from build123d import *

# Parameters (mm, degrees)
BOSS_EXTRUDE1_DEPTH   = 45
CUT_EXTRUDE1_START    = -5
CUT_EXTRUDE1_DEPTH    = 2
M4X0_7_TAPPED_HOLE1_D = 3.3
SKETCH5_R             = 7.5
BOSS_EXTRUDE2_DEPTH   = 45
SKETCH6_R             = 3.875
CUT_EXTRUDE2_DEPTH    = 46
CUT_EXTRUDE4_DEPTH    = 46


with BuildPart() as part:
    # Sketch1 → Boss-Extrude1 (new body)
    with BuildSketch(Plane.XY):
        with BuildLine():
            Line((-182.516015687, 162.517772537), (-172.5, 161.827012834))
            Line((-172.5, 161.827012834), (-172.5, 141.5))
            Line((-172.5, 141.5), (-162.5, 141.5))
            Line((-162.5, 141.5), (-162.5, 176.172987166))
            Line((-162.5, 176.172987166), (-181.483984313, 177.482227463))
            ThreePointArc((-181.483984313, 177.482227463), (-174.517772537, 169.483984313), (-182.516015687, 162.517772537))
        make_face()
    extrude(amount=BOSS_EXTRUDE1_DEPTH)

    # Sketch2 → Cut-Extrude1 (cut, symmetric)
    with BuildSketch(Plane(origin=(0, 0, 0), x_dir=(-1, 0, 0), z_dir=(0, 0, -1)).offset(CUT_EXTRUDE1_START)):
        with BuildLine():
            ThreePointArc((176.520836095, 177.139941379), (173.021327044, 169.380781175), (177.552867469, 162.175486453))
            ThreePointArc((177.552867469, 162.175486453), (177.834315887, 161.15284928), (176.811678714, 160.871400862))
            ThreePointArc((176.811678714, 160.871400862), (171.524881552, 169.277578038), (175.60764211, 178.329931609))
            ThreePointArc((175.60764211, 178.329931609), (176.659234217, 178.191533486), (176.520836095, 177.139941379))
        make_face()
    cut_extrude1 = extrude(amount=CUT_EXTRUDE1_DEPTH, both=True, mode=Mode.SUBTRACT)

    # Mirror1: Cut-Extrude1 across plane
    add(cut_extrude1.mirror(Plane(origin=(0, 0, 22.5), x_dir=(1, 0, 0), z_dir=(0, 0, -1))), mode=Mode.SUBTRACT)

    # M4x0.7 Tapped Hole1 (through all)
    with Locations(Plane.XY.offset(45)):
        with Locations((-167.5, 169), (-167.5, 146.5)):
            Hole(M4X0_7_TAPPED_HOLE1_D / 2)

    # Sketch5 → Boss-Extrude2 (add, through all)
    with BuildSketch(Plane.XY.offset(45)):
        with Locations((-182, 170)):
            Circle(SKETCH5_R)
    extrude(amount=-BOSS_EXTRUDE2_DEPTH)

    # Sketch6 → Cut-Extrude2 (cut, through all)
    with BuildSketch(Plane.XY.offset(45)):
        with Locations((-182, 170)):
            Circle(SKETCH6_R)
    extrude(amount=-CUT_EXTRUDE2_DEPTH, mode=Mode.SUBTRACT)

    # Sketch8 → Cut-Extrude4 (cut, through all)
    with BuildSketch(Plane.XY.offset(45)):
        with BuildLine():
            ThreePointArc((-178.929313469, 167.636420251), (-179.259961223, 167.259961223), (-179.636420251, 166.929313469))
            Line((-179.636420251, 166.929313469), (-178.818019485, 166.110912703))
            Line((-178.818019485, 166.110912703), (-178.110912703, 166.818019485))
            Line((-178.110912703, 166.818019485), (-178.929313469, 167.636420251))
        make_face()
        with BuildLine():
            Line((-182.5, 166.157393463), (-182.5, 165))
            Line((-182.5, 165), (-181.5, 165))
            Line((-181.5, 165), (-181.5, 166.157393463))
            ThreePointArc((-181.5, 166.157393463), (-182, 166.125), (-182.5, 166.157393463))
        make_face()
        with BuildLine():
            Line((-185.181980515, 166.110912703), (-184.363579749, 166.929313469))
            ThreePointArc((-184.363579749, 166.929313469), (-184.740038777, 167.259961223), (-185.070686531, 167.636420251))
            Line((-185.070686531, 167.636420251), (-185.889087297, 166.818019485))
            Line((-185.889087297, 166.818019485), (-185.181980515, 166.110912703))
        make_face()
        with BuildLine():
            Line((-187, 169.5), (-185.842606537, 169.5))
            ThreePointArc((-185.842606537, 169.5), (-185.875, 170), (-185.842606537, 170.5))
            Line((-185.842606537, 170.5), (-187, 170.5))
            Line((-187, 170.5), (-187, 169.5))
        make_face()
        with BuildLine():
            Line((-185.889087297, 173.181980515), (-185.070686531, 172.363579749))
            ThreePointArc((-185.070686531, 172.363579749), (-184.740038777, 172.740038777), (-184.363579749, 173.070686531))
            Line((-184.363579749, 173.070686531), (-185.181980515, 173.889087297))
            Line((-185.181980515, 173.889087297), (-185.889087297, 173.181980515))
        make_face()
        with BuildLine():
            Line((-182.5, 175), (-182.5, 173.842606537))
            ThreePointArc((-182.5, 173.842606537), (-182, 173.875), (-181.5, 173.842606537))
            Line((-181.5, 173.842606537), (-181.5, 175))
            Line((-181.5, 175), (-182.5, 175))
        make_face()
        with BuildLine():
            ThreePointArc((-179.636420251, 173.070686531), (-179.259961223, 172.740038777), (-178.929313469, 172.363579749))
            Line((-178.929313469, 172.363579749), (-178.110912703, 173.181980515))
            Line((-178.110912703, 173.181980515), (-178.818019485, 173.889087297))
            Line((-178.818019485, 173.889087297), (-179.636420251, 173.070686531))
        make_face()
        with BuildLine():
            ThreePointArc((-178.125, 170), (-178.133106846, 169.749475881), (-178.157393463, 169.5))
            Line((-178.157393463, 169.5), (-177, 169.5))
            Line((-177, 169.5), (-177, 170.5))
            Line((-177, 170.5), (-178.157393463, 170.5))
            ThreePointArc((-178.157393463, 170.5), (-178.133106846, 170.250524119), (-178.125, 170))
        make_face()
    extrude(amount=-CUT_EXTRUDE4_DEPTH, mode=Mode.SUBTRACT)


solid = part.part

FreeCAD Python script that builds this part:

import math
import FreeCAD as App
import Part
import Sketcher

V = App.Vector
Q = App.Units.Quantity

doc = App.newDocument("Part")
body = doc.addObject("PartDesign::Body", "Body")

# Sketch on XY plane
sketch1 = doc.addObject("Sketcher::SketchObject", "Sketch")
body.addObject(sketch1)
sketch1.AttachmentSupport = (doc.XY_Plane, [""])
sketch1.MapMode = "FlatFace"
sketch1.addGeometry([
    Part.LineSegment(V(-182.516016, 162.517773, 0), V(-172.5, 161.827013, 0)),  # 0
    Part.LineSegment(V(-172.5, 161.827013, 0), V(-172.5, 141.5, 0)),  # 1
    Part.LineSegment(V(-172.5, 141.5, 0), V(-162.5, 141.5, 0)),  # 2
    Part.LineSegment(V(-162.5, 141.5, 0), V(-162.5, 176.172987, 0)),  # 3
    Part.LineSegment(V(-162.5, 176.172987, 0), V(-181.483984, 177.482227, 0)),  # 4
    Part.ArcOfCircle(Part.Circle(V(-182, 170, 0), V(0, 0, 1), 7.5), math.radians(-93.945186), math.radians(86.054814)),  # 5
], False)
sketch1.addConstraint([
    Sketcher.Constraint("Coincident", 0, 2, 1, 1),
    Sketcher.Constraint("Coincident", 1, 2, 2, 1),
    Sketcher.Constraint("Coincident", 2, 2, 3, 1),
    Sketcher.Constraint("Coincident", 3, 2, 4, 1),
    Sketcher.Constraint("Tangent", 4, 2, 5, 2),
    Sketcher.Constraint("Tangent", 5, 1, 0, 1),
    Sketcher.Constraint("Vertical", 1),
    Sketcher.Constraint("Horizontal", 2),
    Sketcher.Constraint("Vertical", 3),
    Sketcher.Constraint("Parallel", 0, 4),
    Sketcher.Constraint("Radius", 5, Q("7.5 mm")),
    Sketcher.Constraint("DistanceX", 2, 1, 2, 2, Q("10 mm")),
    Sketcher.Constraint("DistanceX", 5, 3, -1, 1, Q("182 mm")),
    Sketcher.Constraint("DistanceY", -1, 1, 5, 3, Q("170 mm")),
    Sketcher.Constraint("DistanceX", 0, 2, -1, 1, Q("172.5 mm")),
    Sketcher.Constraint("DistanceY", -1, 1, 1, 2, Q("141.5 mm")),
    Sketcher.Constraint("DistanceY", 1, 2, 1, 1, Q("20.327013 mm")),
])
pad1 = doc.addObject("PartDesign::Pad", "Pad")
body.addObject(pad1)
pad1.Profile = sketch1
pad1.Length = 45

# Sketch on XY plane
sketch2 = doc.addObject("Sketcher::SketchObject", "Sketch001")
body.addObject(sketch2)
sketch2.AttachmentSupport = (doc.XY_Plane, [""])
sketch2.MapMode = "FlatFace"
sketch2.AttachmentOffset = App.Placement(V(0, 0, 5), App.Rotation())
sketch2.addGeometry([
    Part.ArcOfCircle(Part.Circle(V(-182, 170, 0), V(0, 0, 1), 9), math.radians(-60.387876), math.radians(52.497504)),
    Part.ArcOfCircle(Part.Circle(V(-176.064239, 177.734936, 0), V(0, 0, 1), 0.75), math.radians(52.497504), math.radians(232.497504)),
    Part.ArcOfCircle(Part.Circle(V(-182, 170, 0), V(0, 0, 1), 10.5), math.radians(-60.387876), math.radians(52.497504)),
    Part.ArcOfCircle(Part.Circle(V(-177.182273, 161.523444, 0), V(0, 0, 1), 0.75), math.radians(119.612123), math.radians(299.612124)),
], False)
sketch2.addConstraint([
    Sketcher.Constraint("Tangent", 0, 2, 1, 2),
    Sketcher.Constraint("Tangent", 1, 1, 2, 2),
    Sketcher.Constraint("Tangent", 2, 1, 3, 2),
    Sketcher.Constraint("Tangent", 3, 1, 0, 1),
    Sketcher.Constraint("Coincident", 2, 3, 0, 3),
    Sketcher.Constraint("Radius", 0, Q("9 mm")),
    Sketcher.Constraint("Radius", 2, Q("10.5 mm")),
    Sketcher.Constraint("DistanceX", 0, 3, -1, 1, Q("182 mm")),
    Sketcher.Constraint("DistanceY", -1, 1, 0, 3, Q("170 mm")),
    Sketcher.Constraint("DistanceY", -1, 1, 2, 1, Q("160.871401 mm")),
    Sketcher.Constraint("DistanceX", 1, 3, -1, 1, Q("176.064239 mm")),
])
pocket1 = doc.addObject("PartDesign::Pocket", "Pocket")
body.addObject(pocket1)
pocket1.Profile = sketch2
pocket1.Length = 4
pocket1.Midplane = True
doc.recompute()

datumplane = doc.addObject("PartDesign::Plane", "DatumPlane")
body.addObject(datumplane)
datumplane.AttachmentSupport = (doc.XY_Plane, [""])
datumplane.MapMode = "FlatFace"
datumplane.AttachmentOffset = App.Placement(V(0, 0, 22.5), App.Rotation())
mirrored = doc.addObject("PartDesign::Mirrored", "Mirrored")
body.addObject(mirrored)
mirrored.Originals = [pocket1]
mirrored.MirrorPlane = (datumplane, [""])
body.Tip = mirrored

# Sketch on XY plane
sketch3 = doc.addObject("Sketcher::SketchObject", "Sketch002")
body.addObject(sketch3)
sketch3.AttachmentSupport = (doc.XY_Plane, [""])
sketch3.MapMode = "FlatFace"
sketch3.AttachmentOffset = App.Placement(V(0, 0, 45), App.Rotation())
sketch3.addGeometry([
    Part.Circle(V(-167.5, 169, 0), V(0, 0, 1), 1.65),
    Part.Circle(V(-167.5, 146.5, 0), V(0, 0, 1), 1.65),
], False)
sketch3.addConstraint([
    Sketcher.Constraint("Equal", 0, 1),
    Sketcher.Constraint("Vertical", 0, 3, 1, 3),
    Sketcher.Constraint("Diameter", 0, Q("3.3 mm")),
    Sketcher.Constraint("DistanceY", -1, 1, 0, 3, Q("169 mm")),
    Sketcher.Constraint("DistanceX", 0, 3, -1, 1, Q("167.5 mm")),
    Sketcher.Constraint("DistanceY", -1, 1, 1, 3, Q("146.5 mm")),
])
doc.recompute()
hole = doc.addObject("PartDesign::Hole", "Hole")
body.addObject(hole)
hole.Profile = sketch3
hole.ThreadType = "None"
hole.Diameter = 3.3
hole.DepthType = "ThroughAll"

# Sketch on XY plane
sketch4 = doc.addObject("Sketcher::SketchObject", "Sketch003")
body.addObject(sketch4)
sketch4.AttachmentSupport = (doc.XY_Plane, [""])
sketch4.MapMode = "FlatFace"
sketch4.AttachmentOffset = App.Placement(V(0, 0, 45), App.Rotation())
sketch4.addGeometry(Part.Circle(V(-182, 170, 0), V(0, 0, 1), 7.5), False)
sketch4.addConstraint([
    Sketcher.Constraint("Diameter", 0, Q("15 mm")),
    Sketcher.Constraint("DistanceX", 0, 3, -1, 1, Q("182 mm")),
    Sketcher.Constraint("DistanceY", -1, 1, 0, 3, Q("170 mm")),
])
pad2 = doc.addObject("PartDesign::Pad", "Pad001")
body.addObject(pad2)
pad2.Profile = sketch4
pad2.Length = 45
pad2.Reversed = True

# Sketch on XY plane
sketch5 = doc.addObject("Sketcher::SketchObject", "Sketch004")
body.addObject(sketch5)
sketch5.AttachmentSupport = (doc.XY_Plane, [""])
sketch5.MapMode = "FlatFace"
sketch5.AttachmentOffset = App.Placement(V(0, 0, 45), App.Rotation())
sketch5.addGeometry(Part.Circle(V(-182, 170, 0), V(0, 0, 1), 3.875), False)
sketch5.addConstraint([
    Sketcher.Constraint("Diameter", 0, Q("7.75 mm")),
    Sketcher.Constraint("DistanceX", 0, 3, -1, 1, Q("182 mm")),
    Sketcher.Constraint("DistanceY", -1, 1, 0, 3, Q("170 mm")),
])
pocket2 = doc.addObject("PartDesign::Pocket", "Pocket001")
body.addObject(pocket2)
pocket2.Profile = sketch5
pocket2.Type = "ThroughAll"

# Sketch on XY plane
sketch6 = doc.addObject("Sketcher::SketchObject", "Sketch005")
body.addObject(sketch6)
sketch6.AttachmentSupport = (doc.XY_Plane, [""])
sketch6.MapMode = "FlatFace"
sketch6.AttachmentOffset = App.Placement(V(0, 0, 45), App.Rotation())
sketch6.addGeometry([
    Part.ArcOfCircle(Part.Circle(V(-182, 170, 0), V(0, 0, 1), 3.875), math.radians(-52.413674), math.radians(-37.586326)),  # 0
    Part.LineSegment(V(-179.63642, 166.929313, 0), V(-178.818019, 166.110913, 0)),  # 1
    Part.LineSegment(V(-178.818019, 166.110913, 0), V(-178.110913, 166.818019, 0)),  # 2
    Part.LineSegment(V(-178.110913, 166.818019, 0), V(-178.929313, 167.63642, 0)),  # 3
    Part.LineSegment(V(-182.5, 166.157393, 0), V(-182.5, 165, 0)),  # 4
    Part.LineSegment(V(-182.5, 165, 0), V(-181.5, 165, 0)),  # 5
    Part.LineSegment(V(-181.5, 165, 0), V(-181.5, 166.157393, 0)),  # 6
    Part.ArcOfCircle(Part.Circle(V(-182, 170, 0), V(0, 0, 1), 3.875), math.radians(-97.413674), math.radians(-82.586326)),  # 7
    Part.LineSegment(V(-185.181981, 166.110913, 0), V(-184.36358, 166.929313, 0)),  # 8
    Part.ArcOfCircle(Part.Circle(V(-182, 170, 0), V(0, 0, 1), 3.875), math.radians(-142.413674), math.radians(-127.586326)),  # 9
    Part.LineSegment(V(-185.070687, 167.63642, 0), V(-185.889087, 166.818019, 0)),  # 10
    Part.LineSegment(V(-185.889087, 166.818019, 0), V(-185.181981, 166.110913, 0)),  # 11
    Part.LineSegment(V(-187, 169.5, 0), V(-185.842607, 169.5, 0)),  # 12
    Part.ArcOfCircle(Part.Circle(V(-182, 170, 0), V(0, 0, 1), 3.875), math.radians(172.586326), math.radians(187.413674)),  # 13
    Part.LineSegment(V(-185.842607, 170.5, 0), V(-187, 170.5, 0)),  # 14
    Part.LineSegment(V(-187, 170.5, 0), V(-187, 169.5, 0)),  # 15
    Part.LineSegment(V(-185.889087, 173.181981, 0), V(-185.070687, 172.36358, 0)),  # 16
    Part.ArcOfCircle(Part.Circle(V(-182, 170, 0), V(0, 0, 1), 3.875), math.radians(127.586326), math.radians(142.413674)),  # 17
    Part.LineSegment(V(-184.36358, 173.070687, 0), V(-185.181981, 173.889087, 0)),  # 18
    Part.LineSegment(V(-185.181981, 173.889087, 0), V(-185.889087, 173.181981, 0)),  # 19
    Part.LineSegment(V(-182.5, 175, 0), V(-182.5, 173.842607, 0)),  # 20
    Part.ArcOfCircle(Part.Circle(V(-182, 170, 0), V(0, 0, 1), 3.875), math.radians(82.586326), math.radians(97.413674)),  # 21
    Part.LineSegment(V(-181.5, 173.842607, 0), V(-181.5, 175, 0)),  # 22
    Part.LineSegment(V(-181.5, 175, 0), V(-182.5, 175, 0)),  # 23
    Part.ArcOfCircle(Part.Circle(V(-182, 170, 0), V(0, 0, 1), 3.875), math.radians(37.586326), math.radians(52.413674)),  # 24
    Part.LineSegment(V(-178.929313, 172.36358, 0), V(-178.110913, 173.181981, 0)),  # 25
    Part.LineSegment(V(-178.110913, 173.181981, 0), V(-178.818019, 173.889087, 0)),  # 26
    Part.LineSegment(V(-178.818019, 173.889087, 0), V(-179.63642, 173.070687, 0)),  # 27
    Part.ArcOfCircle(Part.Circle(V(-182, 170, 0), V(0, 0, 1), 3.875), math.radians(-7.413674), math.radians(0)),  # 28
    Part.LineSegment(V(-178.157393, 169.5, 0), V(-177, 169.5, 0)),  # 29
    Part.LineSegment(V(-177, 169.5, 0), V(-177, 170.5, 0)),  # 30
    Part.LineSegment(V(-177, 170.5, 0), V(-178.157393, 170.5, 0)),  # 31
    Part.ArcOfCircle(Part.Circle(V(-182, 170, 0), V(0, 0, 1), 3.875), math.radians(0), math.radians(7.413674)),  # 32
], False)
sketch6.addConstraint([
    Sketcher.Constraint("Coincident", 0, 1, 1, 1),
    Sketcher.Constraint("Coincident", 1, 2, 2, 1),
    Sketcher.Constraint("Coincident", 2, 2, 3, 1),
    Sketcher.Constraint("Coincident", 3, 2, 0, 2),
    Sketcher.Constraint("Coincident", 4, 2, 5, 1),
    Sketcher.Constraint("Coincident", 5, 2, 6, 1),
    Sketcher.Constraint("Coincident", 6, 2, 7, 2),
    Sketcher.Constraint("Coincident", 7, 1, 4, 1),
    Sketcher.Constraint("Coincident", 8, 2, 9, 2),
    Sketcher.Constraint("Coincident", 9, 1, 10, 1),
    Sketcher.Constraint("Coincident", 10, 2, 11, 1),
    Sketcher.Constraint("Coincident", 11, 2, 8, 1),
    Sketcher.Constraint("Coincident", 12, 2, 13, 2),
    Sketcher.Constraint("Coincident", 13, 1, 14, 1),
    Sketcher.Constraint("Coincident", 14, 2, 15, 1),
    Sketcher.Constraint("Coincident", 15, 2, 12, 1),
    Sketcher.Constraint("Coincident", 16, 2, 17, 2),
    Sketcher.Constraint("Coincident", 17, 1, 18, 1),
    Sketcher.Constraint("Coincident", 18, 2, 19, 1),
    Sketcher.Constraint("Coincident", 19, 2, 16, 1),
    Sketcher.Constraint("Coincident", 20, 2, 21, 2),
    Sketcher.Constraint("Coincident", 21, 1, 22, 1),
    Sketcher.Constraint("Coincident", 22, 2, 23, 1),
    Sketcher.Constraint("Coincident", 23, 2, 20, 1),
    Sketcher.Constraint("Coincident", 24, 1, 25, 1),
    Sketcher.Constraint("Coincident", 25, 2, 26, 1),
    Sketcher.Constraint("Coincident", 26, 2, 27, 1),
    Sketcher.Constraint("Coincident", 27, 2, 24, 2),
    Sketcher.Constraint("Coincident", 28, 1, 29, 1),
    Sketcher.Constraint("Coincident", 29, 2, 30, 1),
    Sketcher.Constraint("Coincident", 30, 2, 31, 1),
    Sketcher.Constraint("Coincident", 31, 2, 32, 2),
    Sketcher.Constraint("Tangent", 32, 1, 28, 2),
    Sketcher.Constraint("Vertical", 4),
    Sketcher.Constraint("Horizontal", 5),
    Sketcher.Constraint("Vertical", 6),
    Sketcher.Constraint("Horizontal", 12),
    Sketcher.Constraint("Horizontal", 14),
    Sketcher.Constraint("Vertical", 15),
    Sketcher.Constraint("Vertical", 20),
    Sketcher.Constraint("Vertical", 22),
    Sketcher.Constraint("Horizontal", 23),
    Sketcher.Constraint("Horizontal", 29),
    Sketcher.Constraint("Vertical", 30),
    Sketcher.Constraint("Horizontal", 31),
    Sketcher.Constraint("Coincident", 7, 3, 0, 3),
    Sketcher.Constraint("Coincident", 9, 3, 0, 3),
    Sketcher.Constraint("Coincident", 13, 3, 0, 3),
    Sketcher.Constraint("Coincident", 17, 3, 0, 3),
    Sketcher.Constraint("Coincident", 21, 3, 0, 3),
    Sketcher.Constraint("Coincident", 24, 3, 0, 3),
    Sketcher.Constraint("Coincident", 28, 3, 0, 3),
    Sketcher.Constraint("Equal", 0, 7),
    Sketcher.Constraint("Equal", 7, 9),
    Sketcher.Constraint("Equal", 9, 13),
    Sketcher.Constraint("Equal", 13, 17),
    Sketcher.Constraint("Equal", 17, 21),
    Sketcher.Constraint("Equal", 21, 24),
    Sketcher.Constraint("Equal", 24, 28),
    Sketcher.Constraint("Equal", 28, 32),
    Sketcher.Constraint("Perpendicular", 1, 2),
    Sketcher.Constraint("Perpendicular", 2, 3),
    Sketcher.Constraint("Perpendicular", 3, 8),
    Sketcher.Constraint("Parallel", 8, 10),
    Sketcher.Constraint("Perpendicular", 10, 11),
    Sketcher.Constraint("Parallel", 11, 16),
    Sketcher.Constraint("Parallel", 16, 18),
    Sketcher.Constraint("Perpendicular", 18, 19),
    Sketcher.Constraint("Parallel", 19, 25),
    Sketcher.Constraint("Perpendicular", 25, 26),
    Sketcher.Constraint("Perpendicular", 26, 27),
    Sketcher.Constraint("Horizontal", 6, 2, 7, 1),
    Sketcher.Constraint("Horizontal", 0, 1, 8, 2),
    Sketcher.Constraint("Horizontal", 3, 2, 9, 1),
    Sketcher.Constraint("Horizontal", 2, 2, 10, 2),
    Sketcher.Constraint("Horizontal", 1, 2, 11, 2),
    Sketcher.Constraint("Horizontal", 20, 2, 21, 1),
    Sketcher.Constraint("Horizontal", 16, 2, 24, 1),
    Sketcher.Constraint("Horizontal", 19, 2, 25, 2),
    Sketcher.Constraint("Horizontal", 18, 2, 26, 2),
    Sketcher.Constraint("Horizontal", 15, 2, 28, 1),
    Sketcher.Constraint("Horizontal", 14, 2, 30, 2),
    Sketcher.Constraint("Horizontal", 28, 3, 32, 1),
    Sketcher.Constraint("Vertical", 12, 2, 13, 1),
    Sketcher.Constraint("Vertical", 9, 1, 16, 2),
    Sketcher.Constraint("Vertical", 8, 2, 17, 1),
    Sketcher.Constraint("Vertical", 11, 2, 18, 2),
    Sketcher.Constraint("Vertical", 7, 1, 20, 2),
    Sketcher.Constraint("Equal", 14, 29),
    Sketcher.Constraint("Equal", 31, 4),
    Sketcher.Constraint("Equal", 23, 15),
    Sketcher.Constraint("Equal", 6, 20),
    Sketcher.Constraint("Equal", 1, 3),
    Sketcher.Constraint("DistanceX", 5, 1, 5, 2, Q("1 mm")),
    Sketcher.Constraint("Distance", 2, Q("1 mm")),
    Sketcher.Constraint("DistanceX", 0, 3, -1, 1, Q("182 mm")),
    Sketcher.Constraint("DistanceY", -1, 1, 0, 3, Q("170 mm")),
    Sketcher.Constraint("DistanceY", -1, 1, 4, 2, Q("165 mm")),
    Sketcher.Constraint("Radius", 0, Q("3.875 mm")),
    Sketcher.Constraint("DistanceX", 0, 1, 1, 2, Q("0.818401 mm")),
])
pocket3 = doc.addObject("PartDesign::Pocket", "Pocket002")
body.addObject(pocket3)
pocket3.Profile = sketch6
pocket3.Type = "ThroughAll"

doc.recompute()
